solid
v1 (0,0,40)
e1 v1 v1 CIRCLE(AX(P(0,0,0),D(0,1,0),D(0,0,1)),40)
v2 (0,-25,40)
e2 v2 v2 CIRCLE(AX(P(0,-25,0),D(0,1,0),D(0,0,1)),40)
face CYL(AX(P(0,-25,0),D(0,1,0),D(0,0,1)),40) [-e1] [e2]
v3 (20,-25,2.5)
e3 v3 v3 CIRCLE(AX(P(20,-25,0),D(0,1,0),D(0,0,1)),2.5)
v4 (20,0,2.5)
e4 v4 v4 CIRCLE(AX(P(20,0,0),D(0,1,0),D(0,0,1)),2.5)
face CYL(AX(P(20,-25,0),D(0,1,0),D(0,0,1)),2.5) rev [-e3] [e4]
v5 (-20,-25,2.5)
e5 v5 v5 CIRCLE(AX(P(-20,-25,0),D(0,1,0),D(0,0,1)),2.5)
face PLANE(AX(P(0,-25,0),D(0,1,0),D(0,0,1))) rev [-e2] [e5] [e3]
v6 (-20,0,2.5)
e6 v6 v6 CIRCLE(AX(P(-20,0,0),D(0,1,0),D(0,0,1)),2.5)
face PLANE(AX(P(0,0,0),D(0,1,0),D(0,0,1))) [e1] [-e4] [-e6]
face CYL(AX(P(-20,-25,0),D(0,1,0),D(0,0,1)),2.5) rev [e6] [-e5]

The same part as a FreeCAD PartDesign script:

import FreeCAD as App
import Part
import Sketcher

doc = App.newDocument("Part")
body = doc.addObject("PartDesign::Body", "Body")

# Sketch on XZ plane
sketch1 = body.newObject("Sketcher::SketchObject", "Sketch")
sketch1.AttachmentSupport = (doc.getObject("XZ_Plane"), [""])
sketch1.MapMode = "FlatFace"
sketch1.addGeometry(Part.Circle(App.Vector(0, 0, 0), App.Vector(0, 0, 1), 40), False)
sketch1.addGeometry(Part.Circle(App.Vector(-20, 0, 0), App.Vector(0, 0, 1), 2.5), False)
sketch1.addGeometry(Part.Circle(App.Vector(20, 0, 0), App.Vector(0, 0, 1), 2.5), False)
sketch1.addConstraint(Sketcher.Constraint("Coincident", 0, 3, -1, 1))
sketch1.addConstraint(Sketcher.Constraint("Equal", 1, 2))
sketch1.addConstraint(Sketcher.Constraint("Symmetric", 1, 3, 2, 3, -1, 1))
sketch1.addConstraint(Sketcher.Constraint("PointOnObject", 1, 3, -1))
sketch1.addConstraint(Sketcher.Constraint("Diameter", 0, 80.0))
sketch1.addConstraint(Sketcher.Constraint("Diameter", 1, 5.0))
sketch1.addConstraint(Sketcher.Constraint("DistanceX", 1, 3, -1, 1, 20.0))
pad1 = body.newObject("PartDesign::Pad", "Pad")
pad1.Profile = sketch1
pad1.Length = 25

doc.recompute()
